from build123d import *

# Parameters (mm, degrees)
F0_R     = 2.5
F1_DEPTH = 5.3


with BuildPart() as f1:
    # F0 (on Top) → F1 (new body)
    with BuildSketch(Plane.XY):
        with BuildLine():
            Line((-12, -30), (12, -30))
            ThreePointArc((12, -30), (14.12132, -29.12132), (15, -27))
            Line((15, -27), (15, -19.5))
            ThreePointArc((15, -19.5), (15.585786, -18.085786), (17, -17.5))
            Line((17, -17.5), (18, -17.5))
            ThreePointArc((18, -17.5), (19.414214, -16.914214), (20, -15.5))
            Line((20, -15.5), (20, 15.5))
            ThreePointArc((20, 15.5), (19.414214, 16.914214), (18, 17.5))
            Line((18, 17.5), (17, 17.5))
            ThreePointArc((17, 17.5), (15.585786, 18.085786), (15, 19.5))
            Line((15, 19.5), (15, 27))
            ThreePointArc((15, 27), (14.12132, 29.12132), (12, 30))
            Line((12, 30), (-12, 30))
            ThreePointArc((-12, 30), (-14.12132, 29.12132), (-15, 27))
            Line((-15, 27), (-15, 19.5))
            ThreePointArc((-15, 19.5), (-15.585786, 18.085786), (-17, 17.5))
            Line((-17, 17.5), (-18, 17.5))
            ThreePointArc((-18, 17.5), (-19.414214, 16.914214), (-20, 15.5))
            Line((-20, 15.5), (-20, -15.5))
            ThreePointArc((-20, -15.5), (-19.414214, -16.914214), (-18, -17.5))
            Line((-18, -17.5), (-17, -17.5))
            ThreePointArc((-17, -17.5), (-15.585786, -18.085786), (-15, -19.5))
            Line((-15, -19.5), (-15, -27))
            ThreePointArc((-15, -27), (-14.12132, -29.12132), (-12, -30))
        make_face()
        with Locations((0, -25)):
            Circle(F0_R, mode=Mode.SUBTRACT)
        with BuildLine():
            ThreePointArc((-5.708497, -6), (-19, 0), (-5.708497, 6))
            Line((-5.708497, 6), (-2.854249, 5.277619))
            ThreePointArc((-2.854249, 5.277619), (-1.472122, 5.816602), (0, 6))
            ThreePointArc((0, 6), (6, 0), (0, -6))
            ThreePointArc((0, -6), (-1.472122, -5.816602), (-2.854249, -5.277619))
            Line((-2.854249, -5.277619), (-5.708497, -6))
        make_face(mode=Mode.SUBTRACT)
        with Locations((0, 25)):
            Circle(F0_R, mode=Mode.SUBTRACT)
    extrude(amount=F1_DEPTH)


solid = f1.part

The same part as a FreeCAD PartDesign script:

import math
import FreeCAD as App
import Part
import Sketcher

doc = App.newDocument("Part")
body = doc.addObject("PartDesign::Body", "Body")

sketch1 = body.newObject("Sketcher::SketchObject", "Sketch")
sketch1.AttachmentSupport = (doc.getObject("XY_Plane"), [""])
sketch1.MapMode = "FlatFace"
sketch1.addGeometry(Part.LineSegment(App.Vector(-12, -30, 0), App.Vector(12, -30, 0)), False)
sketch1.addGeometry(Part.ArcOfCircle(Part.Circle(App.Vector(12, -27, 0), App.Vector(0, 0, 1), 3), math.radians(-90), math.radians(0)), False)
sketch1.addGeometry(Part.LineSegment(App.Vector(15, -27, 0), App.Vector(15, -19.5, 0)), False)
sketch1.addGeometry(Part.ArcOfCircle(Part.Circle(App.Vector(17, -19.5, 0), App.Vector(0, 0, 1), 2), math.radians(90), math.radians(180)), False)
sketch1.addGeometry(Part.LineSegment(App.Vector(17, -17.5, 0), App.Vector(18, -17.5, 0)), False)
sketch1.addGeometry(Part.ArcOfCircle(Part.Circle(App.Vector(18, -15.5, 0), App.Vector(0, 0, 1), 2), math.radians(-90), math.radians(0)), False)
sketch1.addGeometry(Part.LineSegment(App.Vector(20, -15.5, 0), App.Vector(20, 15.5, 0)), False)
sketch1.addGeometry(Part.ArcOfCircle(Part.Circle(App.Vector(18, 15.5, 0), App.Vector(0, 0, 1), 2), math.radians(0), math.radians(90)), False)
sketch1.addGeometry(Part.LineSegment(App.Vector(18, 17.5, 0), App.Vector(17, 17.5, 0)), False)
sketch1.addGeometry(Part.ArcOfCircle(Part.Circle(App.Vector(17, 19.5, 0), App.Vector(0, 0, 1), 2), math.radians(180), math.radians(270)), False)
sketch1.addGeometry(Part.LineSegment(App.Vector(15, 19.5, 0), App.Vector(15, 27, 0)), False)
sketch1.addGeometry(Part.ArcOfCircle(Part.Circle(App.Vector(12, 27, 0), App.Vector(0, 0, 1), 3), math.radians(0), math.radians(90)), False)
sketch1.addGeometry(Part.LineSegment(App.Vector(12, 30, 0), App.Vector(-12, 30, 0)), False)
sketch1.addGeometry(Part.ArcOfCircle(Part.Circle(App.Vector(-12, 27, 0), App.Vector(0, 0, 1), 3), math.radians(90), math.radians(180)), False)
sketch1.addGeometry(Part.LineSegment(App.Vector(-15, 27, 0), App.Vector(-15, 19.5, 0)), False)
sketch1.addGeometry(Part.ArcOfCircle(Part.Circle(App.Vector(-17, 19.5, 0), App.Vector(0, 0, 1), 2), math.radians(-90), math.radians(0)), False)
sketch1.addGeometry(Part.LineSegment(App.Vector(-17, 17.5, 0), App.Vector(-18, 17.5, 0)), False)
sketch1.addGeometry(Part.ArcOfCircle(Part.Circle(App.Vector(-18, 15.5, 0), App.Vector(0, 0, 1), 2), math.radians(90), math.radians(180)), False)
sketch1.addGeometry(Part.LineSegment(App.Vector(-20, 15.5, 0), App.Vector(-20, -15.5, 0)), False)
sketch1.addGeometry(Part.ArcOfCircle(Part.Circle(App.Vector(-18, -15.5, 0), App.Vector(0, 0, 1), 2), math.radians(180), math.radians(270)), False)
sketch1.addGeometry(Part.LineSegment(App.Vector(-18, -17.5, 0), App.Vector(-17, -17.5, 0)), False)
sketch1.addGeometry(Part.ArcOfCircle(Part.Circle(App.Vector(-17, -19.5, 0), App.Vector(0, 0, 1), 2), math.radians(0), math.radians(90)), False)
sketch1.addGeometry(Part.LineSegment(App.Vector(-15, -19.5, 0), App.Vector(-15, -27, 0)), False)
sketch1.addGeometry(Part.ArcOfCircle(Part.Circle(App.Vector(-12, -27, 0), App.Vector(0, 0, 1), 3), math.radians(-180), math.radians(-90)), False)
sketch1.addGeometry(Part.Circle(App.Vector(0, -25, 0), App.Vector(0, 0, 1), 2.5), False)
sketch1.addGeometry(Part.LineSegment(App.Vector(-2.9, -5.3, 0), App.Vector(-5.7, -6, 0)), False)
sketch1.addGeometry(Part.ArcOfCircle(Part.Circle(App.Vector(-11, 0, 0), App.Vector(0, 0, 1), 8), math.radians(49), math.radians(311)), False)
sketch1.addGeometry(Part.LineSegment(App.Vector(-5.7, 6, 0), App.Vector(-2.9, 5.3, 0)), False)
sketch1.addGeometry(Part.ArcOfCircle(Part.Circle(App.Vector(0, 0, 0), App.Vector(0, 0, 1), 6), math.radians(90), math.radians(118)), False)
sketch1.addGeometry(Part.ArcOfCircle(Part.Circle(App.Vector(0, 0, 0), App.Vector(0, 0, 1), 6), math.radians(-90), math.radians(90)), False)
sketch1.addGeometry(Part.ArcOfCircle(Part.Circle(App.Vector(0, 0, 0), App.Vector(0, 0, 1), 6), math.radians(-118), math.radians(-90)), False)
sketch1.addGeometry(Part.Circle(App.Vector(0, 25, 0), App.Vector(0, 0, 1), 2.5), False)
sketch1.addConstraint(Sketcher.Constraint("Tangent", 0, 2, 1, 1))
sketch1.addConstraint(Sketcher.Constraint("Tangent", 1, 2, 2, 1))
sketch1.addConstraint(Sketcher.Constraint("Tangent", 2, 2, 3, 2))
sketch1.addConstraint(Sketcher.Constraint("Tangent", 3, 1, 4, 1))
sketch1.addConstraint(Sketcher.Constraint("Tangent", 4, 2, 5, 1))
sketch1.addConstraint(Sketcher.Constraint("Tangent", 5, 2, 6, 1))
sketch1.addConstraint(Sketcher.Constraint("Tangent", 6, 2, 7, 1))
sketch1.addConstraint(Sketcher.Constraint("Tangent", 7, 2, 8, 1))
sketch1.addConstraint(Sketcher.Constraint("Tangent", 8, 2, 9, 2))
sketch1.addConstraint(Sketcher.Constraint("Tangent", 9, 1, 10, 1))
sketch1.addConstraint(Sketcher.Constraint("Tangent", 10, 2, 11, 1))
sketch1.addConstraint(Sketcher.Constraint("Tangent", 11, 2, 12, 1))
sketch1.addConstraint(Sketcher.Constraint("Tangent", 12, 2, 13, 1))
sketch1.addConstraint(Sketcher.Constraint("Tangent", 13, 2, 14, 1))
sketch1.addConstraint(Sketcher.Constraint("Tangent", 14, 2, 15, 2))
sketch1.addConstraint(Sketcher.Constraint("Tangent", 15, 1, 16, 1))
sketch1.addConstraint(Sketcher.Constraint("Tangent", 16, 2, 17, 1))
sketch1.addConstraint(Sketcher.Constraint("Tangent", 17, 2, 18, 1))
sketch1.addConstraint(Sketcher.Constraint("Tangent", 18, 2, 19, 1))
sketch1.addConstraint(Sketcher.Constraint("Tangent", 19, 2, 20, 1))
sketch1.addConstraint(Sketcher.Constraint("Tangent", 20, 2, 21, 2))
sketch1.addConstraint(Sketcher.Constraint("Tangent", 21, 1, 22, 1))
sketch1.addConstraint(Sketcher.Constraint("Tangent", 22, 2, 23, 1))
sketch1.addConstraint(Sketcher.Constraint("Tangent", 23, 2, 0, 1))
sketch1.addConstraint(Sketcher.Constraint("Coincident", 25, 2, 26, 2))
sketch1.addConstraint(Sketcher.Constraint("Coincident", 26, 1, 27, 1))
sketch1.addConstraint(Sketcher.Constraint("Coincident", 27, 2, 28, 2))
sketch1.addConstraint(Sketcher.Constraint("Tangent", 28, 1, 29, 2))
sketch1.addConstraint(Sketcher.Constraint("Tangent", 29, 1, 30, 2))
sketch1.addConstraint(Sketcher.Constraint("Coincident", 30, 1, 25, 1))
sketch1.addConstraint(Sketcher.Constraint("Horizontal", 0))
sketch1.addConstraint(Sketcher.Constraint("Vertical", 2))
sketch1.addConstraint(Sketcher.Constraint("Horizontal", 4))
sketch1.addConstraint(Sketcher.Constraint("Vertical", 6))
sketch1.addConstraint(Sketcher.Constraint("Horizontal", 8))
sketch1.addConstraint(Sketcher.Constraint("Vertical", 10))
sketch1.addConstraint(Sketcher.Constraint("Horizontal", 12))
sketch1.addConstraint(Sketcher.Constraint("Vertical", 14))
sketch1.addConstraint(Sketcher.Constraint("Horizontal", 16))
sketch1.addConstraint(Sketcher.Constraint("Vertical", 18))
sketch1.addConstraint(Sketcher.Constraint("Horizontal", 20))
sketch1.addConstraint(Sketcher.Constraint("Vertical", 22))
sketch1.addConstraint(Sketcher.Constraint("Coincident", 28, 3, -1, 1))
sketch1.addConstraint(Sketcher.Constraint("Equal", 3, 5))
sketch1.addConstraint(Sketcher.Constraint("Equal", 5, 7))
sketch1.addConstraint(Sketcher.Constraint("Equal", 7, 9))
sketch1.addConstraint(Sketcher.Constraint("Equal", 1, 11))
sketch1.addConstraint(Sketcher.Constraint("Equal", 11, 13))
sketch1.addConstraint(Sketcher.Constraint("Equal", 9, 15))
sketch1.addConstraint(Sketcher.Constraint("Equal", 15, 17))
sketch1.addConstraint(Sketcher.Constraint("Equal", 17, 19))
sketch1.addConstraint(Sketcher.Constraint("Equal", 19, 21))
sketch1.addConstraint(Sketcher.Constraint("Equal", 13, 23))
sketch1.addConstraint(Sketcher.Constraint("Equal", 28, 30))
sketch1.addConstraint(Sketcher.Constraint("Equal", 24, 31))
sketch1.addConstraint(Sketcher.Constraint("Symmetric", 1, 3, 13, 3, -1, 1))
sketch1.addConstraint(Sketcher.Constraint("Symmetric", 5, 3, 17, 3, -1, 1))
sketch1.addConstraint(Sketcher.Constraint("Symmetric", 9, 3, 21, 3, -1, 1))
sketch1.addConstraint(Sketcher.Constraint("Symmetric", 24, 3, 31, 3, -1, 1))
sketch1.addConstraint(Sketcher.Constraint("Symmetric", 28, 1, 29, 1, -1, 1))
sketch1.addConstraint(Sketcher.Constraint("Symmetric", 9, 3, 15, 3, -2))
sketch1.addConstraint(Sketcher.Constraint("Symmetric", 25, 2, 26, 1, -1))
sketch1.addConstraint(Sketcher.Constraint("PointOnObject", 24, 3, -2))
sketch1.addConstraint(Sketcher.Constraint("PointOnObject", 28, 1, -2))
sketch1.addConstraint(Sketcher.Constraint("Horizontal", 26, 1, 28, 1))
sketch1.addConstraint(Sketcher.Constraint("Vertical", 27, 2, 30, 1))
sketch1.addConstraint(Sketcher.Constraint("Diameter", 24, 5.0))
sketch1.addConstraint(Sketcher.Constraint("Radius", 1, 3.000001))
sketch1.addConstraint(Sketcher.Constraint("Radius", 3, 1.999999))
sketch1.addConstraint(Sketcher.Constraint("Radius", 26, 8.0))
sketch1.addConstraint(Sketcher.Constraint("Radius", 29, 6.0))
sketch1.addConstraint(Sketcher.Constraint("DistanceX", 0, 1, 0, 2, 24.0))
sketch1.addConstraint(Sketcher.Constraint("DistanceX", 4, 1, 4, 2, 1.0))
sketch1.addConstraint(Sketcher.Constraint("DistanceY", 6, 1, 6, 2, 31.0))
sketch1.addConstraint(Sketcher.Constraint("DistanceY", 2, 1, 2, 2, 7.5))
sketch1.addConstraint(Sketcher.Constraint("DistanceY", 24, 3, -1, 1, 25.0))
sketch1.addConstraint(Sketcher.Constraint("DistanceX", 26, 3, -1, 1, 11.0))
sketch1.addConstraint(Sketcher.Constraint("DistanceX", 27, 2, -1, 1, 2.854249))
pad1 = body.newObject("PartDesign::Pad", "Pad")
pad1.Profile = sketch1
pad1.Length = 5.3

doc.recompute()
